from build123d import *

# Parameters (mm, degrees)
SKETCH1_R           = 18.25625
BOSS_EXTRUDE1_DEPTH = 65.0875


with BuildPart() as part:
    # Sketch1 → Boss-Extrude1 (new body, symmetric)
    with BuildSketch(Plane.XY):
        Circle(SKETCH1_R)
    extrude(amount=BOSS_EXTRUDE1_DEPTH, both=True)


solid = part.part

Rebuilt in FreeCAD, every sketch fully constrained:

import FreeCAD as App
import Part
import Sketcher
from FreeCAD import Vector
Q = App.Units.Quantity

doc = App.newDocument("Part")
params = doc.addObject("Spreadsheet::Sheet", "Params")
for row, (alias, value) in enumerate([
    ("sketch1_diameter", "1.4375 in"),
    ("pad1_length", "5.125 in"),
], start=1):
    params.set(f"A{row}", alias)
    params.set(f"B{row}", "=" + value)
    params.setAlias(f"B{row}", alias)

body = doc.addObject("PartDesign::Body", "Body")

# Sketch on XY plane
sketch1 = doc.addObject("Sketcher::SketchObject", "Sketch")
body.addObject(sketch1)
sketch1.AttachmentSupport = (doc.XY_Plane, [""])
sketch1.MapMode = "FlatFace"
sketch1.addGeometry(Part.Circle(Vector(0, 0, 0), Vector(0, 0, 1), 18.25625), False)
sketch1.addConstraint(Sketcher.Constraint("Coincident", 0, 3, -1, 1))
sketch1.addConstraint(Sketcher.Constraint("Diameter", 0, Q("1.4375 in")))
sketch1.setExpression("Constraints[1]", "Params.sketch1_diameter")
pad1 = doc.addObject("PartDesign::Pad", "Pad")
body.addObject(pad1)
pad1.Profile = sketch1
pad1.setExpression("Length", "Params.pad1_length")
pad1.Midplane = True

doc.recompute()
